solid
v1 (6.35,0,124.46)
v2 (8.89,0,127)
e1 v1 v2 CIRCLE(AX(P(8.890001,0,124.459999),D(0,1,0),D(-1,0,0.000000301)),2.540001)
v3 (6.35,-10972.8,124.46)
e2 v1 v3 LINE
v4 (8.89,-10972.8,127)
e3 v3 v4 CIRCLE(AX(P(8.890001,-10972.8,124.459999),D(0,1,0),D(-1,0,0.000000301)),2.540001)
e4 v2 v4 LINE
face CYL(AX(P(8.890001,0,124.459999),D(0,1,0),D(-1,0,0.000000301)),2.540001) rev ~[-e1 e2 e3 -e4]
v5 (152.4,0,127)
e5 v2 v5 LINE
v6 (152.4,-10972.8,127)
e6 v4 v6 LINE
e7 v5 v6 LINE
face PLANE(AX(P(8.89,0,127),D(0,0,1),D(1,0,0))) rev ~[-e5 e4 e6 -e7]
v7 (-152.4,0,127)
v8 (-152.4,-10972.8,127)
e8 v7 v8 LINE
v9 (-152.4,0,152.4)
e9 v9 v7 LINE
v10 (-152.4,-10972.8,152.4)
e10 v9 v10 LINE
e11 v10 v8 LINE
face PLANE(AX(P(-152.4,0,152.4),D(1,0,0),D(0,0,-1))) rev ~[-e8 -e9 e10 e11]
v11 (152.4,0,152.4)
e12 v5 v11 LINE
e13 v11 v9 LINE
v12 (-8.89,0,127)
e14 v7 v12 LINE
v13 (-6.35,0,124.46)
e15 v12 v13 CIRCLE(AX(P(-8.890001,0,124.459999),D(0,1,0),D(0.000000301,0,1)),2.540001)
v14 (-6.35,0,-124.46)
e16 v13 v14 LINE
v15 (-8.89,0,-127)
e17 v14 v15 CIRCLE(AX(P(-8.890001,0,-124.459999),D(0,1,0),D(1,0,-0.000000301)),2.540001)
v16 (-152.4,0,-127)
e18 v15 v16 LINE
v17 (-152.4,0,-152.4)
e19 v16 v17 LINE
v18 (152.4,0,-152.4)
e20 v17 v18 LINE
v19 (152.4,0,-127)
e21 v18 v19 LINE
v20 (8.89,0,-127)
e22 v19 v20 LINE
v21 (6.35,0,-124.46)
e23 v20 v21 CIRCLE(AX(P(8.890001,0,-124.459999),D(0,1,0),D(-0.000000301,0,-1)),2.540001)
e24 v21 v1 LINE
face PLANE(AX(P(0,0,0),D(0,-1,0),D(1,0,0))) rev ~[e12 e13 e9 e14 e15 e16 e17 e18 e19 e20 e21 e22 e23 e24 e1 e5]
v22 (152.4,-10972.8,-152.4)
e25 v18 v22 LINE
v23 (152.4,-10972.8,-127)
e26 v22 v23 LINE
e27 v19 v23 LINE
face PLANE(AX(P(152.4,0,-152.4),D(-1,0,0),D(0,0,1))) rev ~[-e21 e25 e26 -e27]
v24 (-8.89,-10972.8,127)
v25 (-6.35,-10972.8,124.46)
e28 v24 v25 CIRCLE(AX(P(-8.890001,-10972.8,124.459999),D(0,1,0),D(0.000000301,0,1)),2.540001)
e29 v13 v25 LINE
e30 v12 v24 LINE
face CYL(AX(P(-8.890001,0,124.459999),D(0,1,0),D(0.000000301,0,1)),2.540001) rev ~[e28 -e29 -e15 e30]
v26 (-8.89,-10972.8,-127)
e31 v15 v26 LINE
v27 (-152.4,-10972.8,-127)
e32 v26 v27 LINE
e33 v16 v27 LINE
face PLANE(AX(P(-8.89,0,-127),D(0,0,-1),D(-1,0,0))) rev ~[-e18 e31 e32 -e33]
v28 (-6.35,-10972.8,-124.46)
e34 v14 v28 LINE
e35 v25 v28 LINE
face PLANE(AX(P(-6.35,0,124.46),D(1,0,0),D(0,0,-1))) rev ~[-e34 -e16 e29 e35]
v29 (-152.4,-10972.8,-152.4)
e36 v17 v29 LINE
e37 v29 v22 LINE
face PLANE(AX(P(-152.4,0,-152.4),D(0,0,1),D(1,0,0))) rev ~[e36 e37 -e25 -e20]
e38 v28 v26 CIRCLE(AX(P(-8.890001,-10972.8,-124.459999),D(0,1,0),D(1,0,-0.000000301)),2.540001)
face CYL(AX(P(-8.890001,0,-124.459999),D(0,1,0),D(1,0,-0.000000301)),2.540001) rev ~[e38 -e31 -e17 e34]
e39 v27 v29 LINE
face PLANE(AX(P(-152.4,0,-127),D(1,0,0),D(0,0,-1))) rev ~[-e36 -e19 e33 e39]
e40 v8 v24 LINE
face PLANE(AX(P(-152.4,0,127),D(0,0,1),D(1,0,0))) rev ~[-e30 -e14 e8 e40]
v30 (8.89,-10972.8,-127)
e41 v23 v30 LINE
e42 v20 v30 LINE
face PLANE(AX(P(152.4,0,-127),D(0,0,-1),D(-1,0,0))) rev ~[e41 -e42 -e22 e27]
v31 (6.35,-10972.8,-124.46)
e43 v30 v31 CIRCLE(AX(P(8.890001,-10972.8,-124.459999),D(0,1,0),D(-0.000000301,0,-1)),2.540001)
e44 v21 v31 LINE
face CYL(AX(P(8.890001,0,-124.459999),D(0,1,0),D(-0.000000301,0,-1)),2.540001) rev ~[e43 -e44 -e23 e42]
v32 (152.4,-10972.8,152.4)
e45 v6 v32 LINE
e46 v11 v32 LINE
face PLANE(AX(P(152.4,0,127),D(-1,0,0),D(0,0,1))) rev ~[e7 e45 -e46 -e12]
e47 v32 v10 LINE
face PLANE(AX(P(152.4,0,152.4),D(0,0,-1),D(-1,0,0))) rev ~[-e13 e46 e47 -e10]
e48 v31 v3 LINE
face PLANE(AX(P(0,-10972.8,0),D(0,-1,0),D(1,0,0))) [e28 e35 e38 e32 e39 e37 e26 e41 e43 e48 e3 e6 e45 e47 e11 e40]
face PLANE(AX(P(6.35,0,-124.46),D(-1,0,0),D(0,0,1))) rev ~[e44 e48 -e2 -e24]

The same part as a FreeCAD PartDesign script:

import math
import FreeCAD as App
import Part
import Sketcher

V = App.Vector
Q = App.Units.Quantity

doc = App.newDocument("Part")
body = doc.addObject("PartDesign::Body", "Body")

# Sketch on XZ plane
sketch1 = doc.addObject("Sketcher::SketchObject", "Sketch")
body.addObject(sketch1)
sketch1.AttachmentSupport = (doc.XZ_Plane, [""])
sketch1.MapMode = "FlatFace"
sketch1.addGeometry(Part.LineSegment(V(152.4, -152.4, 0), V(152.4, -127, 0)), False)
sketch1.addGeometry(Part.LineSegment(V(152.4, -127, 0), V(8.9, -127, 0)), False)
sketch1.addGeometry(Part.ArcOfCircle(Part.Circle(V(8.9, -124.5, 0), V(0, 0, 1), 2.5), math.radians(-180), math.radians(-90)), False)
sketch1.addGeometry(Part.LineSegment(V(6.3, -124.5, 0), V(6.3, 124.5, 0)), False)
sketch1.addGeometry(Part.ArcOfCircle(Part.Circle(V(8.9, 124.5, 0), V(0, 0, 1), 2.5), math.radians(90), math.radians(180)), False)
sketch1.addGeometry(Part.LineSegment(V(8.9, 127, 0), V(152.4, 127, 0)), False)
sketch1.addGeometry(Part.LineSegment(V(152.4, 127, 0), V(152.4, 152.4, 0)), False)
sketch1.addGeometry(Part.LineSegment(V(152.4, 152.4, 0), V(-152.4, 152.4, 0)), False)
sketch1.addGeometry(Part.LineSegment(V(-152.4, 152.4, 0), V(-152.4, 127, 0)), False)
sketch1.addGeometry(Part.LineSegment(V(-152.4, 127, 0), V(-8.9, 127, 0)), False)
sketch1.addGeometry(Part.ArcOfCircle(Part.Circle(V(-8.9, 124.5, 0), V(0, 0, 1), 2.5), math.radians(0), math.radians(90)), False)
sketch1.addGeometry(Part.LineSegment(V(-6.3, 124.5, 0), V(-6.3, -124.5, 0)), False)
sketch1.addGeometry(Part.ArcOfCircle(Part.Circle(V(-8.9, -124.5, 0), V(0, 0, 1), 2.5), math.radians(-90), math.radians(0)), False)
sketch1.addGeometry(Part.LineSegment(V(-8.9, -127, 0), V(-152.4, -127, 0)), False)
sketch1.addGeometry(Part.LineSegment(V(-152.4, -127, 0), V(-152.4, -152.4, 0)), False)
sketch1.addGeometry(Part.LineSegment(V(-152.4, -152.4, 0), V(152.4, -152.4, 0)), False)
sketch1.addConstraint(Sketcher.Constraint("Coincident", 0, 2, 1, 1))
sketch1.addConstraint(Sketcher.Constraint("Tangent", 1, 2, 2, 2))
sketch1.addConstraint(Sketcher.Constraint("Tangent", 2, 1, 3, 1))
sketch1.addConstraint(Sketcher.Constraint("Tangent", 3, 2, 4, 2))
sketch1.addConstraint(Sketcher.Constraint("Tangent", 4, 1, 5, 1))
sketch1.addConstraint(Sketcher.Constraint("Coincident", 5, 2, 6, 1))
sketch1.addConstraint(Sketcher.Constraint("Coincident", 6, 2, 7, 1))
sketch1.addConstraint(Sketcher.Constraint("Coincident", 7, 2, 8, 1))
sketch1.addConstraint(Sketcher.Constraint("Coincident", 8, 2, 9, 1))
sketch1.addConstraint(Sketcher.Constraint("Tangent", 9, 2, 10, 2))
sketch1.addConstraint(Sketcher.Constraint("Tangent", 10, 1, 11, 1))
sketch1.addConstraint(Sketcher.Constraint("Tangent", 11, 2, 12, 2))
sketch1.addConstraint(Sketcher.Constraint("Tangent", 12, 1, 13, 1))
sketch1.addConstraint(Sketcher.Constraint("Coincident", 13, 2, 14, 1))
sketch1.addConstraint(Sketcher.Constraint("Coincident", 14, 2, 15, 1))
sketch1.addConstraint(Sketcher.Constraint("Coincident", 15, 2, 0, 1))
sketch1.addConstraint(Sketcher.Constraint("Vertical", 0))
sketch1.addConstraint(Sketcher.Constraint("Horizontal", 1))
sketch1.addConstraint(Sketcher.Constraint("Vertical", 3))
sketch1.addConstraint(Sketcher.Constraint("Horizontal", 5))
sketch1.addConstraint(Sketcher.Constraint("Vertical", 6))
sketch1.addConstraint(Sketcher.Constraint("Horizontal", 7))
sketch1.addConstraint(Sketcher.Constraint("Vertical", 8))
sketch1.addConstraint(Sketcher.Constraint("Horizontal", 9))
sketch1.addConstraint(Sketcher.Constraint("Vertical", 11))
sketch1.addConstraint(Sketcher.Constraint("Horizontal", 13))
sketch1.addConstraint(Sketcher.Constraint("Vertical", 14))
sketch1.addConstraint(Sketcher.Constraint("Horizontal", 15))
sketch1.addConstraint(Sketcher.Constraint("Equal", 2, 4))
sketch1.addConstraint(Sketcher.Constraint("Equal", 4, 10))
sketch1.addConstraint(Sketcher.Constraint("Equal", 10, 12))
sketch1.addConstraint(Sketcher.Constraint("Symmetric", 2, 3, 10, 3, -1, 1))
sketch1.addConstraint(Sketcher.Constraint("Symmetric", 5, 2, 13, 2, -1, 1))
sketch1.addConstraint(Sketcher.Constraint("Symmetric", 7, 2, 15, 2, -1, 1))
sketch1.addConstraint(Sketcher.Constraint("Symmetric", 5, 2, 8, 2, -2))
sketch1.addConstraint(Sketcher.Constraint("Radius", 2, Q("0.1 in")))
sketch1.addConstraint(Sketcher.Constraint("DistanceX", 7, 2, 7, 1, Q("12 in")))
sketch1.addConstraint(Sketcher.Constraint("DistanceY", 0, 1, 0, 2, Q("1 in")))
sketch1.addConstraint(Sketcher.Constraint("DistanceY", 3, 1, 3, 2, Q("9.8 in")))
sketch1.addConstraint(Sketcher.Constraint("DistanceX", 1, 2, 1, 1, Q("5.65 in")))
pad1 = doc.addObject("PartDesign::Pad", "Pad")
body.addObject(pad1)
pad1.Profile = sketch1
pad1.Length = Q("432 in")

doc.recompute()
